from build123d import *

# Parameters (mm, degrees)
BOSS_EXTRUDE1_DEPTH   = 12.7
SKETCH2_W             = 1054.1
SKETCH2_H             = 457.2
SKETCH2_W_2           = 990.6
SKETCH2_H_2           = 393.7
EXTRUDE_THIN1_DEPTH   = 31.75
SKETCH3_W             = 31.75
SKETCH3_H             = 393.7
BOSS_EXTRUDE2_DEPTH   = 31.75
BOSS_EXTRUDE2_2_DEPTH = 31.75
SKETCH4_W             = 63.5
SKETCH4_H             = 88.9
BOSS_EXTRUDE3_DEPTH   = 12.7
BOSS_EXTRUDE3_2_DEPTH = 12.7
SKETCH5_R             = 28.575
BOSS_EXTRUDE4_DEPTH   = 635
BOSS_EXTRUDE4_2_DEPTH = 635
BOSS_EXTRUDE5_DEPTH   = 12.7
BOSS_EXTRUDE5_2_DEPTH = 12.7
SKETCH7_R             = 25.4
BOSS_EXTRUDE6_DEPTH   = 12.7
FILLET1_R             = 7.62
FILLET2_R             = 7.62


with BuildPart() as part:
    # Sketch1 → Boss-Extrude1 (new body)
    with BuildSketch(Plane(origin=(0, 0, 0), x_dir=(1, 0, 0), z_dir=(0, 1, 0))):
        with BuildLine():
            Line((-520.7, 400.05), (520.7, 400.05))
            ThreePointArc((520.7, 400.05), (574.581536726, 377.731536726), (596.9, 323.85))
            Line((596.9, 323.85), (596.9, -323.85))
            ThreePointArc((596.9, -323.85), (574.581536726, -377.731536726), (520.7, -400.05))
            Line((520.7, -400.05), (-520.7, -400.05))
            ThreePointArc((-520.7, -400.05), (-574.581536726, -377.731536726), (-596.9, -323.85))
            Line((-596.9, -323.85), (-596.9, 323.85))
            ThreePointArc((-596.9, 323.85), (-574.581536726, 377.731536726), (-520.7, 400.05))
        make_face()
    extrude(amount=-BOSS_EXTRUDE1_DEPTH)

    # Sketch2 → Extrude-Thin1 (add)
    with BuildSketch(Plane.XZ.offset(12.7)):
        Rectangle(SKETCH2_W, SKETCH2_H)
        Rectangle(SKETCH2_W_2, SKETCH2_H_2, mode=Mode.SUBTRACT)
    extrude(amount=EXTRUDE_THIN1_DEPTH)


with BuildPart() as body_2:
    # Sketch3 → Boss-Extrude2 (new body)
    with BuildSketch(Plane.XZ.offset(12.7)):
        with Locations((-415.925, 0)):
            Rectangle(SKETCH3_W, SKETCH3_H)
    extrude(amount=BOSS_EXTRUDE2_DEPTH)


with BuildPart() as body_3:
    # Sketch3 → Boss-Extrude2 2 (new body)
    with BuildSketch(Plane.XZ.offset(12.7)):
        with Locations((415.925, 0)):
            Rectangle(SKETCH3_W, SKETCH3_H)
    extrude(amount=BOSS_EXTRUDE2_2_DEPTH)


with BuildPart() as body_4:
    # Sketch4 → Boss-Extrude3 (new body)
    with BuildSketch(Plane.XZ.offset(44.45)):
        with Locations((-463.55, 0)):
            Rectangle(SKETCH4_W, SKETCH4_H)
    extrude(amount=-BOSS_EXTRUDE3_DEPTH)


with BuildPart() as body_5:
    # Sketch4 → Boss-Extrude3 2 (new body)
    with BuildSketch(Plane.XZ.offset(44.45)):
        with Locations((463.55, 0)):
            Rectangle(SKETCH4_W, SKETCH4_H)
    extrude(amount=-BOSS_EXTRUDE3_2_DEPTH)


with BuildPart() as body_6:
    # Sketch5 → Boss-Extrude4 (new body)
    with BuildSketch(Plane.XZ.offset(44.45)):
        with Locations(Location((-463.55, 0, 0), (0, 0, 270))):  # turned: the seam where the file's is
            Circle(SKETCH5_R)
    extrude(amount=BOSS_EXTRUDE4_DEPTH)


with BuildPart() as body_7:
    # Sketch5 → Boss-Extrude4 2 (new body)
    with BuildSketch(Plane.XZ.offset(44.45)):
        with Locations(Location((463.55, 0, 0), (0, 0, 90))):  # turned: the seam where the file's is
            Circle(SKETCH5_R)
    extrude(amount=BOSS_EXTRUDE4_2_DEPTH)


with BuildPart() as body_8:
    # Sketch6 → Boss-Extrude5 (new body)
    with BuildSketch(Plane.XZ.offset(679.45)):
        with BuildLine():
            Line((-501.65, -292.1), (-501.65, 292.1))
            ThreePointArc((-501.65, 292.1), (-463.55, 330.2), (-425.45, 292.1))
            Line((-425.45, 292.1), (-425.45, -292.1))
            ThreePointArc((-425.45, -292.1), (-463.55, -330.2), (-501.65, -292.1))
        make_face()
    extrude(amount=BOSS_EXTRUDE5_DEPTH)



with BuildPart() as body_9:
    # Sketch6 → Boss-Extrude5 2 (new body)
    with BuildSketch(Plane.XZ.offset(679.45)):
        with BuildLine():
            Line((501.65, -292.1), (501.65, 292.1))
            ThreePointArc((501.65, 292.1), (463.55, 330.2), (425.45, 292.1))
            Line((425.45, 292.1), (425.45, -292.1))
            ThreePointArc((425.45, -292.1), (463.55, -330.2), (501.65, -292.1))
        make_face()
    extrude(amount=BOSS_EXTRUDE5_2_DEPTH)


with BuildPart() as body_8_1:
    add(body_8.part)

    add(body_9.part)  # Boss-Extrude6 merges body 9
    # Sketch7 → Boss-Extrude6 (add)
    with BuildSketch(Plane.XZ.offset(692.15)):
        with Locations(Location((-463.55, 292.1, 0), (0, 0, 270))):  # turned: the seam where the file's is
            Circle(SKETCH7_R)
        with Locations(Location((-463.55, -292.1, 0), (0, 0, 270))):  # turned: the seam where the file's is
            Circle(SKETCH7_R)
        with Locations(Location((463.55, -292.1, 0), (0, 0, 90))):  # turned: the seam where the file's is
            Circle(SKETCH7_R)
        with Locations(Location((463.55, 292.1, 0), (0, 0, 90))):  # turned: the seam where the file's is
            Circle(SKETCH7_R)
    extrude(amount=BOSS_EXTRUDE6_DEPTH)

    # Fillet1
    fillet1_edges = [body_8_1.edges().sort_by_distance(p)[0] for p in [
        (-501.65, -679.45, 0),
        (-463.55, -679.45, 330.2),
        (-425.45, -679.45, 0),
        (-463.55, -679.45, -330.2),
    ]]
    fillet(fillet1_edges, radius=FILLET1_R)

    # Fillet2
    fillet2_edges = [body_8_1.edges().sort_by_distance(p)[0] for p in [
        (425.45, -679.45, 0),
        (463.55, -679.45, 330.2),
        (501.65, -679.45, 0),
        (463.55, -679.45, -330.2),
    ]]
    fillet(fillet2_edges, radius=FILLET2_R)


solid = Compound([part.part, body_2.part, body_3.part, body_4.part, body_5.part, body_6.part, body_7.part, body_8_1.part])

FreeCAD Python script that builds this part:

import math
import FreeCAD as App
import Part
import Sketcher
from FreeCAD import Vector
Q = App.Units.Quantity


def edges_at(feature, points):
    """Names of the edges that pass closest to the given points."""
    edges = feature.Shape.Edges
    near = lambda p: min(range(len(edges)), key=lambda i: edges[i].distToShape(Part.Vertex(*p))[0])
    return sorted({f"Edge{near(p) + 1}" for p in points})


def add_polygon(sketch, points):
    """Adds a closed chain of lines whose ends are joined by coincident constraints."""
    first, n = sketch.GeometryCount, len(points)
    for a, b in zip(points, points[1:] + points[:1]):
        sketch.addGeometry(Part.LineSegment(App.Vector(*a, 0), App.Vector(*b, 0)), False)
    for i in range(n):
        sketch.addConstraint(Sketcher.Constraint("Coincident", first + i, 2, first + (i + 1) % n, 1))

doc = App.newDocument("Part")
body = doc.addObject("PartDesign::Body", "Body")

sketch1 = body.newObject("Sketcher::SketchObject", "Sketch")
sketch1.AttachmentSupport = (doc.getObject("XZ_Plane"), [""])
sketch1.MapMode = "FlatFace"
sketch1.addGeometry(Part.LineSegment(Vector(521, -400, 0), Vector(-521, -400, 0)), False)
sketch1.addGeometry(Part.ArcOfCircle(Part.Circle(Vector(-521, -324, 0), Vector(0, 0, 1), 76), math.radians(-180), math.radians(-90)), False)
sketch1.addGeometry(Part.LineSegment(Vector(-597, -324, 0), Vector(-597, 324, 0)), False)
sketch1.addGeometry(Part.ArcOfCircle(Part.Circle(Vector(-521, 324, 0), Vector(0, 0, 1), 76), math.radians(90), math.radians(180)), False)
sketch1.addGeometry(Part.LineSegment(Vector(-521, 400, 0), Vector(521, 400, 0)), False)
sketch1.addGeometry(Part.ArcOfCircle(Part.Circle(Vector(521, 324, 0), Vector(0, 0, 1), 76), math.radians(0), math.radians(90)), False)
sketch1.addGeometry(Part.LineSegment(Vector(597, 324, 0), Vector(597, -324, 0)), False)
sketch1.addGeometry(Part.ArcOfCircle(Part.Circle(Vector(521, -324, 0), Vector(0, 0, 1), 76), math.radians(-90), math.radians(0)), False)
sketch1.addConstraint(Sketcher.Constraint("Tangent", 0, 2, 1, 2))
sketch1.addConstraint(Sketcher.Constraint("Tangent", 1, 1, 2, 1))
sketch1.addConstraint(Sketcher.Constraint("Tangent", 2, 2, 3, 2))
sketch1.addConstraint(Sketcher.Constraint("Tangent", 3, 1, 4, 1))
sketch1.addConstraint(Sketcher.Constraint("Tangent", 4, 2, 5, 2))
sketch1.addConstraint(Sketcher.Constraint("Tangent", 5, 1, 6, 1))
sketch1.addConstraint(Sketcher.Constraint("Tangent", 6, 2, 7, 2))
sketch1.addConstraint(Sketcher.Constraint("Tangent", 7, 1, 0, 1))
sketch1.addConstraint(Sketcher.Constraint("Horizontal", 0))
sketch1.addConstraint(Sketcher.Constraint("Vertical", 2))
sketch1.addConstraint(Sketcher.Constraint("Horizontal", 4))
sketch1.addConstraint(Sketcher.Constraint("Vertical", 6))
sketch1.addConstraint(Sketcher.Constraint("Equal", 1, 3))
sketch1.addConstraint(Sketcher.Constraint("Equal", 3, 5))
sketch1.addConstraint(Sketcher.Constraint("Equal", 5, 7))
sketch1.addConstraint(Sketcher.Constraint("Symmetric", 1, 3, 5, 3, -1, 1))
sketch1.addConstraint(Sketcher.Constraint("Radius", 1, Q("3 in")))
sketch1.addConstraint(Sketcher.Constraint("DistanceX", 0, 2, 0, 1, Q("41 in")))
sketch1.addConstraint(Sketcher.Constraint("DistanceY", 2, 1, 2, 2, Q("25.5 in")))
pad1 = body.newObject("PartDesign::Pad", "Pad")
pad1.Profile = sketch1
pad1.Length = Q("0.5 in")

sketch2 = body.newObject("Sketcher::SketchObject", "Sketch001")
sketch2.AttachmentSupport = (doc.getObject("XZ_Plane"), [""])
sketch2.MapMode = "FlatFace"
sketch2.AttachmentOffset = App.Placement(Vector(0, 0, 0.5 * 25.4), App.Rotation())
add_polygon(sketch2, [(-527, 229), (-527, -229), (527, -229), (527, 229)])
add_polygon(sketch2, [(495, -197), (-495, -197), (-495, 197), (495, 197)])
sketch2.addConstraint(Sketcher.Constraint("Vertical", 0))
sketch2.addConstraint(Sketcher.Constraint("Horizontal", 1))
sketch2.addConstraint(Sketcher.Constraint("Vertical", 2))
sketch2.addConstraint(Sketcher.Constraint("Horizontal", 3))
sketch2.addConstraint(Sketcher.Constraint("Horizontal", 4))
sketch2.addConstraint(Sketcher.Constraint("Vertical", 5))
sketch2.addConstraint(Sketcher.Constraint("Horizontal", 6))
sketch2.addConstraint(Sketcher.Constraint("Vertical", 7))
sketch2.addConstraint(Sketcher.Constraint("Symmetric", 0, 2, 2, 2, -1, 1))
sketch2.addConstraint(Sketcher.Constraint("Symmetric", 4, 2, 6, 2, -1, 1))
sketch2.addConstraint(Sketcher.Constraint("DistanceX", 4, 2, 4, 1, Q("39 in")))
sketch2.addConstraint(Sketcher.Constraint("DistanceY", 0, 2, 0, 1, Q("18 in")))
sketch2.addConstraint(Sketcher.Constraint("DistanceX", 1, 1, 1, 2, Q("41.5 in")))
sketch2.addConstraint(Sketcher.Constraint("DistanceY", 5, 1, 5, 2, Q("15.5 in")))
pad2 = body.newObject("PartDesign::Pad", "Pad001")
pad2.Profile = sketch2
pad2.Length = Q("1.25 in")
body2 = doc.addObject("PartDesign::Body", "Body001")

sketch3 = body2.newObject("Sketcher::SketchObject", "Sketch002")
sketch3.AttachmentSupport = (doc.getObject("XZ_Plane001"), [""])
sketch3.MapMode = "FlatFace"
sketch3.AttachmentOffset = App.Placement(Vector(0, 0, 0.5 * 25.4), App.Rotation())
add_polygon(sketch3, [(-432, 197), (-432, -197), (-400, -197), (-400, 197)])
sketch3.addConstraint(Sketcher.Constraint("Vertical", 0))
sketch3.addConstraint(Sketcher.Constraint("Horizontal", 1))
sketch3.addConstraint(Sketcher.Constraint("Vertical", 2))
sketch3.addConstraint(Sketcher.Constraint("Horizontal", 3))
sketch3.addConstraint(Sketcher.Constraint("DistanceY", 0, 2, 0, 1, Q("15.5 in")))
sketch3.addConstraint(Sketcher.Constraint("DistanceX", 0, 2, -1, 1, Q("17 in")))
sketch3.addConstraint(Sketcher.Constraint("DistanceX", 1, 1, 1, 2, Q("1.25 in")))
sketch3.addConstraint(Sketcher.Constraint("DistanceY", 0, 2, -1, 1, Q("7.75 in")))
pad3 = body2.newObject("PartDesign::Pad", "Pad002")
pad3.Profile = sketch3
pad3.Length = Q("1.25 in")
body3 = doc.addObject("PartDesign::Body", "Body002")

sketch4 = body3.newObject("Sketcher::SketchObject", "Sketch003")
sketch4.AttachmentSupport = (doc.getObject("XZ_Plane002"), [""])
sketch4.MapMode = "FlatFace"
sketch4.AttachmentOffset = App.Placement(Vector(0, 0, 0.5 * 25.4), App.Rotation())
add_polygon(sketch4, [(400, 197), (400, -197), (432, -197), (432, 197)])
sketch4.addConstraint(Sketcher.Constraint("Vertical", 0))
sketch4.addConstraint(Sketcher.Constraint("Horizontal", 1))
sketch4.addConstraint(Sketcher.Constraint("Vertical", 2))
sketch4.addConstraint(Sketcher.Constraint("Horizontal", 3))
sketch4.addConstraint(Sketcher.Constraint("DistanceY", 0, 2, 0, 1, Q("15.5 in")))
sketch4.addConstraint(Sketcher.Constraint("DistanceX", -1, 1, 1, 2, Q("17 in")))
sketch4.addConstraint(Sketcher.Constraint("DistanceX", 1, 1, 1, 2, Q("1.25 in")))
sketch4.addConstraint(Sketcher.Constraint("DistanceY", 0, 2, -1, 1, Q("7.75 in")))
pad4 = body3.newObject("PartDesign::Pad", "Pad003")
pad4.Profile = sketch4
pad4.Length = Q("1.25 in")
body4 = doc.addObject("PartDesign::Body", "Body003")

sketch5 = body4.newObject("Sketcher::SketchObject", "Sketch004")
sketch5.AttachmentSupport = (doc.getObject("XZ_Plane003"), [""])
sketch5.MapMode = "FlatFace"
sketch5.AttachmentOffset = App.Placement(Vector(0, 0, 1.75 * 25.4), App.Rotation())
add_polygon(sketch5, [(-495, 44), (-495, -44), (-432, -44), (-432, 44)])
sketch5.addConstraint(Sketcher.Constraint("Vertical", 0))
sketch5.addConstraint(Sketcher.Constraint("Horizontal", 1))
sketch5.addConstraint(Sketcher.Constraint("Vertical", 2))
sketch5.addConstraint(Sketcher.Constraint("Horizontal", 3))
sketch5.addConstraint(Sketcher.Constraint("DistanceX", 1, 1, 1, 2, Q("2.5 in")))
sketch5.addConstraint(Sketcher.Constraint("DistanceY", 0, 2, 0, 1, Q("3.5 in")))
sketch5.addConstraint(Sketcher.Constraint("DistanceX", 1, 2, -1, 1, Q("17 in")))
sketch5.addConstraint(Sketcher.Constraint("DistanceY", 0, 2, -1, 1, Q("1.75 in")))
pad5 = body4.newObject("PartDesign::Pad", "Pad004")
pad5.Profile = sketch5
pad5.Length = Q("0.5 in")
pad5.Reversed = True
body5 = doc.addObject("PartDesign::Body", "Body004")

sketch6 = body5.newObject("Sketcher::SketchObject", "Sketch005")
sketch6.AttachmentSupport = (doc.getObject("XZ_Plane004"), [""])
sketch6.MapMode = "FlatFace"
sketch6.AttachmentOffset = App.Placement(Vector(0, 0, 1.75 * 25.4), App.Rotation())
add_polygon(sketch6, [(432, 44), (432, -44), (495, -44), (495, 44)])
sketch6.addConstraint(Sketcher.Constraint("Vertical", 0))
sketch6.addConstraint(Sketcher.Constraint("Horizontal", 1))
sketch6.addConstraint(Sketcher.Constraint("Vertical", 2))
sketch6.addConstraint(Sketcher.Constraint("Horizontal", 3))
sketch6.addConstraint(Sketcher.Constraint("DistanceX", 1, 1, 1, 2, Q("2.5 in")))
sketch6.addConstraint(Sketcher.Constraint("DistanceY", 0, 2, 0, 1, Q("3.5 in")))
sketch6.addConstraint(Sketcher.Constraint("DistanceX", -1, 1, 0, 2, Q("17 in")))
sketch6.addConstraint(Sketcher.Constraint("DistanceY", 0, 2, -1, 1, Q("1.75 in")))
pad6 = body5.newObject("PartDesign::Pad", "Pad005")
pad6.Profile = sketch6
pad6.Length = Q("0.5 in")
pad6.Reversed = True
body6 = doc.addObject("PartDesign::Body", "Body005")

sketch7 = body6.newObject("Sketcher::SketchObject", "Sketch006")
sketch7.AttachmentSupport = (doc.getObject("XZ_Plane005"), [""])
sketch7.MapMode = "FlatFace"
sketch7.AttachmentOffset = App.Placement(Vector(0, 0, 1.75 * 25.4), App.Rotation())
sketch7.addGeometry(Part.Circle(Vector(-464, 0, 0), Vector(0, 0, 1), 29), False)
sketch7.addConstraint(Sketcher.Constraint("PointOnObject", 0, 3, -1))
sketch7.addConstraint(Sketcher.Constraint("Diameter", 0, Q("2.25 in")))
sketch7.addConstraint(Sketcher.Constraint("DistanceX", 0, 3, -1, 1, Q("18.25 in")))
pad7 = body6.newObject("PartDesign::Pad", "Pad006")
pad7.Profile = sketch7
pad7.Length = Q("25 in")
body7 = doc.addObject("PartDesign::Body", "Body006")

sketch8 = body7.newObject("Sketcher::SketchObject", "Sketch007")
sketch8.AttachmentSupport = (doc.getObject("XZ_Plane006"), [""])
sketch8.MapMode = "FlatFace"
sketch8.AttachmentOffset = App.Placement(Vector(0, 0, 1.75 * 25.4), App.Rotation())
sketch8.addGeometry(Part.Circle(Vector(464, 0, 0), Vector(0, 0, 1), 29), False)
sketch8.addConstraint(Sketcher.Constraint("PointOnObject", 0, 3, -1))
sketch8.addConstraint(Sketcher.Constraint("Diameter", 0, Q("2.25 in")))
sketch8.addConstraint(Sketcher.Constraint("DistanceX", -1, 1, 0, 3, Q("18.25 in")))
pad8 = body7.newObject("PartDesign::Pad", "Pad007")
pad8.Profile = sketch8
pad8.Length = Q("25 in")
body8 = doc.addObject("PartDesign::Body", "Body007")

sketch9 = body8.newObject("Sketcher::SketchObject", "Sketch008")
sketch9.AttachmentSupport = (doc.getObject("XZ_Plane007"), [""])
sketch9.MapMode = "FlatFace"
sketch9.AttachmentOffset = App.Placement(Vector(0, 0, 26.75 * 25.4), App.Rotation())
sketch9.addGeometry(Part.LineSegment(Vector(-502, 292, 0), Vector(-502, -292, 0)), False)
sketch9.addGeometry(Part.ArcOfCircle(Part.Circle(Vector(-464, -292, 0), Vector(0, 0, 1), 38), math.radians(180), math.radians(360)), False)
sketch9.addGeometry(Part.LineSegment(Vector(-425, -292, 0), Vector(-425, 292, 0)), False)
sketch9.addGeometry(Part.ArcOfCircle(Part.Circle(Vector(-464, 292, 0), Vector(0, 0, 1), 38), math.radians(0), math.radians(180)), False)
sketch9.addConstraint(Sketcher.Constraint("Tangent", 0, 2, 1, 1))
sketch9.addConstraint(Sketcher.Constraint("Tangent", 1, 2, 2, 1))
sketch9.addConstraint(Sketcher.Constraint("Tangent", 2, 2, 3, 1))
sketch9.addConstraint(Sketcher.Constraint("Tangent", 3, 2, 0, 1))
sketch9.addConstraint(Sketcher.Constraint("Vertical", 0))
sketch9.addConstraint(Sketcher.Constraint("Vertical", 2))
sketch9.addConstraint(Sketcher.Constraint("Radius", 1, Q("1.5 in")))
sketch9.addConstraint(Sketcher.Constraint("DistanceY", 0, 2, 0, 1, Q("23 in")))
sketch9.addConstraint(Sketcher.Constraint("DistanceY", 1, 3, -1, 1, Q("11.5 in")))
sketch9.addConstraint(Sketcher.Constraint("DistanceX", 1, 3, -1, 1, Q("18.25 in")))
pad9 = body8.newObject("PartDesign::Pad", "Pad008")
pad9.Profile = sketch9
pad9.Length = Q("0.5 in")
body9 = doc.addObject("PartDesign::Body", "Body008")

sketch10 = body9.newObject("Sketcher::SketchObject", "Sketch009")
sketch10.AttachmentSupport = (doc.getObject("XZ_Plane008"), [""])
sketch10.MapMode = "FlatFace"
sketch10.AttachmentOffset = App.Placement(Vector(0, 0, 26.75 * 25.4), App.Rotation())
sketch10.addGeometry(Part.LineSegment(Vector(502, -292, 0), Vector(502, 292, 0)), False)
sketch10.addGeometry(Part.ArcOfCircle(Part.Circle(Vector(464, 292, 0), Vector(0, 0, 1), 38), math.radians(0), math.radians(180)), False)
sketch10.addGeometry(Part.LineSegment(Vector(425, 292, 0), Vector(425, -292, 0)), False)
sketch10.addGeometry(Part.ArcOfCircle(Part.Circle(Vector(464, -292, 0), Vector(0, 0, 1), 38), math.radians(180), math.radians(360)), False)
sketch10.addConstraint(Sketcher.Constraint("Tangent", 0, 2, 1, 1))
sketch10.addConstraint(Sketcher.Constraint("Tangent", 1, 2, 2, 1))
sketch10.addConstraint(Sketcher.Constraint("Tangent", 2, 2, 3, 1))
sketch10.addConstraint(Sketcher.Constraint("Tangent", 3, 2, 0, 1))
sketch10.addConstraint(Sketcher.Constraint("Vertical", 0))
sketch10.addConstraint(Sketcher.Constraint("Vertical", 2))
sketch10.addConstraint(Sketcher.Constraint("Radius", 1, Q("1.5 in")))
sketch10.addConstraint(Sketcher.Constraint("DistanceY", 0, 1, 0, 2, Q("23 in")))
sketch10.addConstraint(Sketcher.Constraint("DistanceY", -1, 1, 1, 3, Q("11.5 in")))
sketch10.addConstraint(Sketcher.Constraint("DistanceX", -1, 1, 1, 3, Q("18.25 in")))
pad10 = body9.newObject("PartDesign::Pad", "Pad009")
pad10.Profile = sketch10
pad10.Length = Q("0.5 in")
body8.AllowCompound = True
doc.recompute()

boolean = body8.newObject("PartDesign::Boolean", "Boolean")
boolean.Type = "Fuse"
boolean.addObjects([body9])

sketch11 = body8.newObject("Sketcher::SketchObject", "Sketch010")
sketch11.AttachmentSupport = (doc.getObject("XZ_Plane007"), [""])
sketch11.MapMode = "FlatFace"
sketch11.AttachmentOffset = App.Placement(Vector(0, 0, 27.25 * 25.4), App.Rotation())
sketch11.addGeometry(Part.Circle(Vector(-464, 292, 0), Vector(0, 0, 1), 25), False)
sketch11.addGeometry(Part.Circle(Vector(-464, -292, 0), Vector(0, 0, 1), 25), False)
sketch11.addGeometry(Part.Circle(Vector(464, -292, 0), Vector(0, 0, 1), 25), False)
sketch11.addGeometry(Part.Circle(Vector(464, 292, 0), Vector(0, 0, 1), 25), False)
sketch11.addConstraint(Sketcher.Constraint("Equal", 0, 1))
sketch11.addConstraint(Sketcher.Constraint("Equal", 1, 2))
sketch11.addConstraint(Sketcher.Constraint("Equal", 2, 3))
sketch11.addConstraint(Sketcher.Constraint("Symmetric", 0, 3, 2, 3, -1, 1))
sketch11.addConstraint(Sketcher.Constraint("Symmetric", 1, 3, 3, 3, -1, 1))
sketch11.addConstraint(Sketcher.Constraint("Symmetric", 1, 3, 2, 3, -2))
sketch11.addConstraint(Sketcher.Constraint("Diameter", 0, Q("2 in")))
sketch11.addConstraint(Sketcher.Constraint("DistanceY", 1, 3, 0, 3, Q("23 in")))
sketch11.addConstraint(Sketcher.Constraint("DistanceX", 1, 3, 2, 3, Q("36.5 in")))
pad11 = body8.newObject("PartDesign::Pad", "Pad010")
pad11.Profile = sketch11
pad11.Length = Q("0.5 in")
doc.recompute()

fillet = body8.newObject("PartDesign::Fillet", "Fillet")
fillet.Base = (pad11, edges_at(pad11, [
    (-501.65, -679.45, 0),
    (-463.55, -679.45, 330.2),
    (-425.45, -679.45, 0),
    (-463.55, -679.45, -330.2),
]))
fillet.Radius = Q("0.3 in")
doc.recompute()

fillet2 = body8.newObject("PartDesign::Fillet", "Fillet001")
fillet2.Base = (fillet, edges_at(fillet, [
    (425.45, -679.45, 0),
    (463.55, -679.45, 330.2),
    (501.65, -679.45, 0),
    (463.55, -679.45, -330.2),
]))
fillet2.Radius = Q("0.3 in")

doc.recompute()
